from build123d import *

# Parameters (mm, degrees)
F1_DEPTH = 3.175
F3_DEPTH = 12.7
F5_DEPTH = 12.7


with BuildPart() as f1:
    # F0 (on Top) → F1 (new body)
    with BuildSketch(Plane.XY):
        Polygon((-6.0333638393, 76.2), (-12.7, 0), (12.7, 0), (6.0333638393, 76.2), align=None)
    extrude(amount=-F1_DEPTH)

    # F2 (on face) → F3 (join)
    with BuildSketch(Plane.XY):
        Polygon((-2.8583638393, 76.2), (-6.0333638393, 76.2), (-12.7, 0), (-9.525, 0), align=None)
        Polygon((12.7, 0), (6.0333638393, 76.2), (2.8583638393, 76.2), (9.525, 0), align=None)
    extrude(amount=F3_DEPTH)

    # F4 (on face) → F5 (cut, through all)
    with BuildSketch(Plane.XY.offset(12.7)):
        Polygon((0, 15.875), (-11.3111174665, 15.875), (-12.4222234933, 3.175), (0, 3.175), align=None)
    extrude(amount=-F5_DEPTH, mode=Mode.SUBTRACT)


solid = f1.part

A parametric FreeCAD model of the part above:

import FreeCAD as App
import Part
import Sketcher
from FreeCAD import Vector
Q = App.Units.Quantity

doc = App.newDocument("Part")
params = doc.addObject("Spreadsheet::Sheet", "Params")
for row, (alias, value) in enumerate([
    ("sketch1_width", "1 in"),
    ("pad1_length", "0.125 in"),
    ("sketch2_width", "0.125 in"),
    ("pad2_length", "0.5 in"),
    ("sketch3_height", "0.5 in"),
    ("pocket1_length", "0.5 in"),
], start=1):
    params.set(f"A{row}", alias)
    params.set(f"B{row}", "=" + value)
    params.setAlias(f"B{row}", alias)

body = doc.addObject("PartDesign::Body", "Body")

# Sketch on XY plane
sketch1 = body.newObject("Sketcher::SketchObject", "Sketch")
sketch1.AttachmentSupport = (doc.getObject("XY_Plane"), [""])
sketch1.MapMode = "FlatFace"
sketch1.addGeometry([
    Part.LineSegment(Vector(-6.033364, 76.2, 0), Vector(-12.7, 0, 0)),
    Part.LineSegment(Vector(-12.7, 0, 0), Vector(12.7, 0, 0)),
    Part.LineSegment(Vector(12.7, 0, 0), Vector(6.033364, 76.2, 0)),
    Part.LineSegment(Vector(6.033364, 76.2, 0), Vector(-6.033364, 76.2, 0)),
], False)
sketch1.addConstraint([
    Sketcher.Constraint("Coincident", 0, 2, 1, 1),
    Sketcher.Constraint("Coincident", 1, 2, 2, 1),
    Sketcher.Constraint("Coincident", 2, 2, 3, 1),
    Sketcher.Constraint("Coincident", 3, 2, 0, 1),
    Sketcher.Constraint("Horizontal", 1),
    Sketcher.Constraint("Horizontal", 3),
    Sketcher.Constraint("Symmetric", 0, 2, 1, 2, -1, 1),
    Sketcher.Constraint("Equal", 0, 2),
    Sketcher.Constraint("DistanceX", 1, 1, 1, 2, Q("1 in")),
    Sketcher.Constraint("DistanceY", -1, 1, 2, 2, Q("3 in")),
    Sketcher.Constraint("Angle", 0, Q("-95 deg")),
])
sketch1.setExpression("Constraints[8]", "Params.sketch1_width")
pad1 = body.newObject("PartDesign::Pad", "Pad")
pad1.Profile = sketch1
pad1.setExpression("Length", "Params.pad1_length")
pad1.Reversed = True

# Sketch on XY plane
sketch2 = body.newObject("Sketcher::SketchObject", "Sketch001")
sketch2.AttachmentSupport = (doc.getObject("XY_Plane"), [""])
sketch2.MapMode = "FlatFace"
sketch2.addGeometry([
    Part.LineSegment(Vector(-2.858364, 76.2, 0), Vector(-6.033364, 76.2, 0)),  # 0
    Part.LineSegment(Vector(-6.033364, 76.2, 0), Vector(-12.7, 0, 0)),  # 1
    Part.LineSegment(Vector(-12.7, 0, 0), Vector(-9.525, 0, 0)),  # 2
    Part.LineSegment(Vector(-9.525, 0, 0), Vector(-2.858364, 76.2, 0)),  # 3
    Part.LineSegment(Vector(12.7, 0, 0), Vector(6.033364, 76.2, 0)),  # 4
    Part.LineSegment(Vector(6.033364, 76.2, 0), Vector(2.858364, 76.2, 0)),  # 5
    Part.LineSegment(Vector(2.858364, 76.2, 0), Vector(9.525, 0, 0)),  # 6
    Part.LineSegment(Vector(9.525, 0, 0), Vector(12.7, 0, 0)),  # 7
], False)
sketch2.addConstraint([
    Sketcher.Constraint("Coincident", 0, 2, 1, 1),
    Sketcher.Constraint("Coincident", 1, 2, 2, 1),
    Sketcher.Constraint("Coincident", 2, 2, 3, 1),
    Sketcher.Constraint("Coincident", 3, 2, 0, 1),
    Sketcher.Constraint("Coincident", 4, 2, 5, 1),
    Sketcher.Constraint("Coincident", 5, 2, 6, 1),
    Sketcher.Constraint("Coincident", 6, 2, 7, 1),
    Sketcher.Constraint("Coincident", 7, 2, 4, 1),
    Sketcher.Constraint("Horizontal", 0),
    Sketcher.Constraint("Horizontal", 2),
    Sketcher.Constraint("Horizontal", 5),
    Sketcher.Constraint("Horizontal", 7),
    Sketcher.Constraint("Symmetric", 2, 2, 6, 2, -1, 1),
    Sketcher.Constraint("Symmetric", 0, 2, 4, 2, -2),
    Sketcher.Constraint("Symmetric", 1, 2, 7, 2, -2),
    Sketcher.Constraint("Parallel", 1, 3),
    Sketcher.Constraint("Parallel", 4, 6),
    Sketcher.Constraint("DistanceY", -1, 1, 0, 2, Q("3 in")),
    Sketcher.Constraint("Angle", 1, Q("-95 deg")),
    Sketcher.Constraint("DistanceX", 1, 2, 7, 2, Q("1 in")),
    Sketcher.Constraint("DistanceX", 0, 2, 0, 1, Q("0.125 in")),
])
sketch2.setExpression("Constraints[20]", "Params.sketch2_width")
pad2 = body.newObject("PartDesign::Pad", "Pad001")
pad2.Profile = sketch2
pad2.setExpression("Length", "Params.pad2_length")

# Sketch on XY plane
sketch3 = body.newObject("Sketcher::SketchObject", "Sketch002")
sketch3.AttachmentSupport = (doc.getObject("XY_Plane"), [""])
sketch3.MapMode = "FlatFace"
sketch3.AttachmentOffset = App.Placement(Vector(0, 0, 0.5 * 25.4), App.Rotation())
sketch3.addGeometry([
    Part.LineSegment(Vector(0, 15.875, 0), Vector(-11.311117, 15.875, 0)),
    Part.LineSegment(Vector(-11.311117, 15.875, 0), Vector(-12.422223, 3.175, 0)),
    Part.LineSegment(Vector(-12.422223, 3.175, 0), Vector(0, 3.175, 0)),
    Part.LineSegment(Vector(0, 3.175, 0), Vector(0, 15.875, 0)),
], False)
sketch3.addConstraint([
    Sketcher.Constraint("Coincident", 0, 2, 1, 1),
    Sketcher.Constraint("Coincident", 1, 2, 2, 1),
    Sketcher.Constraint("Coincident", 2, 2, 3, 1),
    Sketcher.Constraint("Coincident", 3, 2, 0, 1),
    Sketcher.Constraint("Horizontal", 0),
    Sketcher.Constraint("Horizontal", 2),
    Sketcher.Constraint("Vertical", 3),
    Sketcher.Constraint("PointOnObject", 2, 2, -2),
    Sketcher.Constraint("DistanceY", 3, 1, 3, 2, Q("0.5 in")),
    Sketcher.Constraint("Angle", 1, Q("-95 deg")),
    Sketcher.Constraint("DistanceY", -1, 1, 0, 2, Q("0.625 in")),
    Sketcher.Constraint("DistanceX", 0, 2, 0, 1, 11.311117),
])
sketch3.setExpression("Constraints[8]", "Params.sketch3_height")
pocket1 = body.newObject("PartDesign::Pocket", "Pocket")
pocket1.Profile = sketch3
pocket1.setExpression("Length", "Params.pocket1_length")

doc.recompute()
